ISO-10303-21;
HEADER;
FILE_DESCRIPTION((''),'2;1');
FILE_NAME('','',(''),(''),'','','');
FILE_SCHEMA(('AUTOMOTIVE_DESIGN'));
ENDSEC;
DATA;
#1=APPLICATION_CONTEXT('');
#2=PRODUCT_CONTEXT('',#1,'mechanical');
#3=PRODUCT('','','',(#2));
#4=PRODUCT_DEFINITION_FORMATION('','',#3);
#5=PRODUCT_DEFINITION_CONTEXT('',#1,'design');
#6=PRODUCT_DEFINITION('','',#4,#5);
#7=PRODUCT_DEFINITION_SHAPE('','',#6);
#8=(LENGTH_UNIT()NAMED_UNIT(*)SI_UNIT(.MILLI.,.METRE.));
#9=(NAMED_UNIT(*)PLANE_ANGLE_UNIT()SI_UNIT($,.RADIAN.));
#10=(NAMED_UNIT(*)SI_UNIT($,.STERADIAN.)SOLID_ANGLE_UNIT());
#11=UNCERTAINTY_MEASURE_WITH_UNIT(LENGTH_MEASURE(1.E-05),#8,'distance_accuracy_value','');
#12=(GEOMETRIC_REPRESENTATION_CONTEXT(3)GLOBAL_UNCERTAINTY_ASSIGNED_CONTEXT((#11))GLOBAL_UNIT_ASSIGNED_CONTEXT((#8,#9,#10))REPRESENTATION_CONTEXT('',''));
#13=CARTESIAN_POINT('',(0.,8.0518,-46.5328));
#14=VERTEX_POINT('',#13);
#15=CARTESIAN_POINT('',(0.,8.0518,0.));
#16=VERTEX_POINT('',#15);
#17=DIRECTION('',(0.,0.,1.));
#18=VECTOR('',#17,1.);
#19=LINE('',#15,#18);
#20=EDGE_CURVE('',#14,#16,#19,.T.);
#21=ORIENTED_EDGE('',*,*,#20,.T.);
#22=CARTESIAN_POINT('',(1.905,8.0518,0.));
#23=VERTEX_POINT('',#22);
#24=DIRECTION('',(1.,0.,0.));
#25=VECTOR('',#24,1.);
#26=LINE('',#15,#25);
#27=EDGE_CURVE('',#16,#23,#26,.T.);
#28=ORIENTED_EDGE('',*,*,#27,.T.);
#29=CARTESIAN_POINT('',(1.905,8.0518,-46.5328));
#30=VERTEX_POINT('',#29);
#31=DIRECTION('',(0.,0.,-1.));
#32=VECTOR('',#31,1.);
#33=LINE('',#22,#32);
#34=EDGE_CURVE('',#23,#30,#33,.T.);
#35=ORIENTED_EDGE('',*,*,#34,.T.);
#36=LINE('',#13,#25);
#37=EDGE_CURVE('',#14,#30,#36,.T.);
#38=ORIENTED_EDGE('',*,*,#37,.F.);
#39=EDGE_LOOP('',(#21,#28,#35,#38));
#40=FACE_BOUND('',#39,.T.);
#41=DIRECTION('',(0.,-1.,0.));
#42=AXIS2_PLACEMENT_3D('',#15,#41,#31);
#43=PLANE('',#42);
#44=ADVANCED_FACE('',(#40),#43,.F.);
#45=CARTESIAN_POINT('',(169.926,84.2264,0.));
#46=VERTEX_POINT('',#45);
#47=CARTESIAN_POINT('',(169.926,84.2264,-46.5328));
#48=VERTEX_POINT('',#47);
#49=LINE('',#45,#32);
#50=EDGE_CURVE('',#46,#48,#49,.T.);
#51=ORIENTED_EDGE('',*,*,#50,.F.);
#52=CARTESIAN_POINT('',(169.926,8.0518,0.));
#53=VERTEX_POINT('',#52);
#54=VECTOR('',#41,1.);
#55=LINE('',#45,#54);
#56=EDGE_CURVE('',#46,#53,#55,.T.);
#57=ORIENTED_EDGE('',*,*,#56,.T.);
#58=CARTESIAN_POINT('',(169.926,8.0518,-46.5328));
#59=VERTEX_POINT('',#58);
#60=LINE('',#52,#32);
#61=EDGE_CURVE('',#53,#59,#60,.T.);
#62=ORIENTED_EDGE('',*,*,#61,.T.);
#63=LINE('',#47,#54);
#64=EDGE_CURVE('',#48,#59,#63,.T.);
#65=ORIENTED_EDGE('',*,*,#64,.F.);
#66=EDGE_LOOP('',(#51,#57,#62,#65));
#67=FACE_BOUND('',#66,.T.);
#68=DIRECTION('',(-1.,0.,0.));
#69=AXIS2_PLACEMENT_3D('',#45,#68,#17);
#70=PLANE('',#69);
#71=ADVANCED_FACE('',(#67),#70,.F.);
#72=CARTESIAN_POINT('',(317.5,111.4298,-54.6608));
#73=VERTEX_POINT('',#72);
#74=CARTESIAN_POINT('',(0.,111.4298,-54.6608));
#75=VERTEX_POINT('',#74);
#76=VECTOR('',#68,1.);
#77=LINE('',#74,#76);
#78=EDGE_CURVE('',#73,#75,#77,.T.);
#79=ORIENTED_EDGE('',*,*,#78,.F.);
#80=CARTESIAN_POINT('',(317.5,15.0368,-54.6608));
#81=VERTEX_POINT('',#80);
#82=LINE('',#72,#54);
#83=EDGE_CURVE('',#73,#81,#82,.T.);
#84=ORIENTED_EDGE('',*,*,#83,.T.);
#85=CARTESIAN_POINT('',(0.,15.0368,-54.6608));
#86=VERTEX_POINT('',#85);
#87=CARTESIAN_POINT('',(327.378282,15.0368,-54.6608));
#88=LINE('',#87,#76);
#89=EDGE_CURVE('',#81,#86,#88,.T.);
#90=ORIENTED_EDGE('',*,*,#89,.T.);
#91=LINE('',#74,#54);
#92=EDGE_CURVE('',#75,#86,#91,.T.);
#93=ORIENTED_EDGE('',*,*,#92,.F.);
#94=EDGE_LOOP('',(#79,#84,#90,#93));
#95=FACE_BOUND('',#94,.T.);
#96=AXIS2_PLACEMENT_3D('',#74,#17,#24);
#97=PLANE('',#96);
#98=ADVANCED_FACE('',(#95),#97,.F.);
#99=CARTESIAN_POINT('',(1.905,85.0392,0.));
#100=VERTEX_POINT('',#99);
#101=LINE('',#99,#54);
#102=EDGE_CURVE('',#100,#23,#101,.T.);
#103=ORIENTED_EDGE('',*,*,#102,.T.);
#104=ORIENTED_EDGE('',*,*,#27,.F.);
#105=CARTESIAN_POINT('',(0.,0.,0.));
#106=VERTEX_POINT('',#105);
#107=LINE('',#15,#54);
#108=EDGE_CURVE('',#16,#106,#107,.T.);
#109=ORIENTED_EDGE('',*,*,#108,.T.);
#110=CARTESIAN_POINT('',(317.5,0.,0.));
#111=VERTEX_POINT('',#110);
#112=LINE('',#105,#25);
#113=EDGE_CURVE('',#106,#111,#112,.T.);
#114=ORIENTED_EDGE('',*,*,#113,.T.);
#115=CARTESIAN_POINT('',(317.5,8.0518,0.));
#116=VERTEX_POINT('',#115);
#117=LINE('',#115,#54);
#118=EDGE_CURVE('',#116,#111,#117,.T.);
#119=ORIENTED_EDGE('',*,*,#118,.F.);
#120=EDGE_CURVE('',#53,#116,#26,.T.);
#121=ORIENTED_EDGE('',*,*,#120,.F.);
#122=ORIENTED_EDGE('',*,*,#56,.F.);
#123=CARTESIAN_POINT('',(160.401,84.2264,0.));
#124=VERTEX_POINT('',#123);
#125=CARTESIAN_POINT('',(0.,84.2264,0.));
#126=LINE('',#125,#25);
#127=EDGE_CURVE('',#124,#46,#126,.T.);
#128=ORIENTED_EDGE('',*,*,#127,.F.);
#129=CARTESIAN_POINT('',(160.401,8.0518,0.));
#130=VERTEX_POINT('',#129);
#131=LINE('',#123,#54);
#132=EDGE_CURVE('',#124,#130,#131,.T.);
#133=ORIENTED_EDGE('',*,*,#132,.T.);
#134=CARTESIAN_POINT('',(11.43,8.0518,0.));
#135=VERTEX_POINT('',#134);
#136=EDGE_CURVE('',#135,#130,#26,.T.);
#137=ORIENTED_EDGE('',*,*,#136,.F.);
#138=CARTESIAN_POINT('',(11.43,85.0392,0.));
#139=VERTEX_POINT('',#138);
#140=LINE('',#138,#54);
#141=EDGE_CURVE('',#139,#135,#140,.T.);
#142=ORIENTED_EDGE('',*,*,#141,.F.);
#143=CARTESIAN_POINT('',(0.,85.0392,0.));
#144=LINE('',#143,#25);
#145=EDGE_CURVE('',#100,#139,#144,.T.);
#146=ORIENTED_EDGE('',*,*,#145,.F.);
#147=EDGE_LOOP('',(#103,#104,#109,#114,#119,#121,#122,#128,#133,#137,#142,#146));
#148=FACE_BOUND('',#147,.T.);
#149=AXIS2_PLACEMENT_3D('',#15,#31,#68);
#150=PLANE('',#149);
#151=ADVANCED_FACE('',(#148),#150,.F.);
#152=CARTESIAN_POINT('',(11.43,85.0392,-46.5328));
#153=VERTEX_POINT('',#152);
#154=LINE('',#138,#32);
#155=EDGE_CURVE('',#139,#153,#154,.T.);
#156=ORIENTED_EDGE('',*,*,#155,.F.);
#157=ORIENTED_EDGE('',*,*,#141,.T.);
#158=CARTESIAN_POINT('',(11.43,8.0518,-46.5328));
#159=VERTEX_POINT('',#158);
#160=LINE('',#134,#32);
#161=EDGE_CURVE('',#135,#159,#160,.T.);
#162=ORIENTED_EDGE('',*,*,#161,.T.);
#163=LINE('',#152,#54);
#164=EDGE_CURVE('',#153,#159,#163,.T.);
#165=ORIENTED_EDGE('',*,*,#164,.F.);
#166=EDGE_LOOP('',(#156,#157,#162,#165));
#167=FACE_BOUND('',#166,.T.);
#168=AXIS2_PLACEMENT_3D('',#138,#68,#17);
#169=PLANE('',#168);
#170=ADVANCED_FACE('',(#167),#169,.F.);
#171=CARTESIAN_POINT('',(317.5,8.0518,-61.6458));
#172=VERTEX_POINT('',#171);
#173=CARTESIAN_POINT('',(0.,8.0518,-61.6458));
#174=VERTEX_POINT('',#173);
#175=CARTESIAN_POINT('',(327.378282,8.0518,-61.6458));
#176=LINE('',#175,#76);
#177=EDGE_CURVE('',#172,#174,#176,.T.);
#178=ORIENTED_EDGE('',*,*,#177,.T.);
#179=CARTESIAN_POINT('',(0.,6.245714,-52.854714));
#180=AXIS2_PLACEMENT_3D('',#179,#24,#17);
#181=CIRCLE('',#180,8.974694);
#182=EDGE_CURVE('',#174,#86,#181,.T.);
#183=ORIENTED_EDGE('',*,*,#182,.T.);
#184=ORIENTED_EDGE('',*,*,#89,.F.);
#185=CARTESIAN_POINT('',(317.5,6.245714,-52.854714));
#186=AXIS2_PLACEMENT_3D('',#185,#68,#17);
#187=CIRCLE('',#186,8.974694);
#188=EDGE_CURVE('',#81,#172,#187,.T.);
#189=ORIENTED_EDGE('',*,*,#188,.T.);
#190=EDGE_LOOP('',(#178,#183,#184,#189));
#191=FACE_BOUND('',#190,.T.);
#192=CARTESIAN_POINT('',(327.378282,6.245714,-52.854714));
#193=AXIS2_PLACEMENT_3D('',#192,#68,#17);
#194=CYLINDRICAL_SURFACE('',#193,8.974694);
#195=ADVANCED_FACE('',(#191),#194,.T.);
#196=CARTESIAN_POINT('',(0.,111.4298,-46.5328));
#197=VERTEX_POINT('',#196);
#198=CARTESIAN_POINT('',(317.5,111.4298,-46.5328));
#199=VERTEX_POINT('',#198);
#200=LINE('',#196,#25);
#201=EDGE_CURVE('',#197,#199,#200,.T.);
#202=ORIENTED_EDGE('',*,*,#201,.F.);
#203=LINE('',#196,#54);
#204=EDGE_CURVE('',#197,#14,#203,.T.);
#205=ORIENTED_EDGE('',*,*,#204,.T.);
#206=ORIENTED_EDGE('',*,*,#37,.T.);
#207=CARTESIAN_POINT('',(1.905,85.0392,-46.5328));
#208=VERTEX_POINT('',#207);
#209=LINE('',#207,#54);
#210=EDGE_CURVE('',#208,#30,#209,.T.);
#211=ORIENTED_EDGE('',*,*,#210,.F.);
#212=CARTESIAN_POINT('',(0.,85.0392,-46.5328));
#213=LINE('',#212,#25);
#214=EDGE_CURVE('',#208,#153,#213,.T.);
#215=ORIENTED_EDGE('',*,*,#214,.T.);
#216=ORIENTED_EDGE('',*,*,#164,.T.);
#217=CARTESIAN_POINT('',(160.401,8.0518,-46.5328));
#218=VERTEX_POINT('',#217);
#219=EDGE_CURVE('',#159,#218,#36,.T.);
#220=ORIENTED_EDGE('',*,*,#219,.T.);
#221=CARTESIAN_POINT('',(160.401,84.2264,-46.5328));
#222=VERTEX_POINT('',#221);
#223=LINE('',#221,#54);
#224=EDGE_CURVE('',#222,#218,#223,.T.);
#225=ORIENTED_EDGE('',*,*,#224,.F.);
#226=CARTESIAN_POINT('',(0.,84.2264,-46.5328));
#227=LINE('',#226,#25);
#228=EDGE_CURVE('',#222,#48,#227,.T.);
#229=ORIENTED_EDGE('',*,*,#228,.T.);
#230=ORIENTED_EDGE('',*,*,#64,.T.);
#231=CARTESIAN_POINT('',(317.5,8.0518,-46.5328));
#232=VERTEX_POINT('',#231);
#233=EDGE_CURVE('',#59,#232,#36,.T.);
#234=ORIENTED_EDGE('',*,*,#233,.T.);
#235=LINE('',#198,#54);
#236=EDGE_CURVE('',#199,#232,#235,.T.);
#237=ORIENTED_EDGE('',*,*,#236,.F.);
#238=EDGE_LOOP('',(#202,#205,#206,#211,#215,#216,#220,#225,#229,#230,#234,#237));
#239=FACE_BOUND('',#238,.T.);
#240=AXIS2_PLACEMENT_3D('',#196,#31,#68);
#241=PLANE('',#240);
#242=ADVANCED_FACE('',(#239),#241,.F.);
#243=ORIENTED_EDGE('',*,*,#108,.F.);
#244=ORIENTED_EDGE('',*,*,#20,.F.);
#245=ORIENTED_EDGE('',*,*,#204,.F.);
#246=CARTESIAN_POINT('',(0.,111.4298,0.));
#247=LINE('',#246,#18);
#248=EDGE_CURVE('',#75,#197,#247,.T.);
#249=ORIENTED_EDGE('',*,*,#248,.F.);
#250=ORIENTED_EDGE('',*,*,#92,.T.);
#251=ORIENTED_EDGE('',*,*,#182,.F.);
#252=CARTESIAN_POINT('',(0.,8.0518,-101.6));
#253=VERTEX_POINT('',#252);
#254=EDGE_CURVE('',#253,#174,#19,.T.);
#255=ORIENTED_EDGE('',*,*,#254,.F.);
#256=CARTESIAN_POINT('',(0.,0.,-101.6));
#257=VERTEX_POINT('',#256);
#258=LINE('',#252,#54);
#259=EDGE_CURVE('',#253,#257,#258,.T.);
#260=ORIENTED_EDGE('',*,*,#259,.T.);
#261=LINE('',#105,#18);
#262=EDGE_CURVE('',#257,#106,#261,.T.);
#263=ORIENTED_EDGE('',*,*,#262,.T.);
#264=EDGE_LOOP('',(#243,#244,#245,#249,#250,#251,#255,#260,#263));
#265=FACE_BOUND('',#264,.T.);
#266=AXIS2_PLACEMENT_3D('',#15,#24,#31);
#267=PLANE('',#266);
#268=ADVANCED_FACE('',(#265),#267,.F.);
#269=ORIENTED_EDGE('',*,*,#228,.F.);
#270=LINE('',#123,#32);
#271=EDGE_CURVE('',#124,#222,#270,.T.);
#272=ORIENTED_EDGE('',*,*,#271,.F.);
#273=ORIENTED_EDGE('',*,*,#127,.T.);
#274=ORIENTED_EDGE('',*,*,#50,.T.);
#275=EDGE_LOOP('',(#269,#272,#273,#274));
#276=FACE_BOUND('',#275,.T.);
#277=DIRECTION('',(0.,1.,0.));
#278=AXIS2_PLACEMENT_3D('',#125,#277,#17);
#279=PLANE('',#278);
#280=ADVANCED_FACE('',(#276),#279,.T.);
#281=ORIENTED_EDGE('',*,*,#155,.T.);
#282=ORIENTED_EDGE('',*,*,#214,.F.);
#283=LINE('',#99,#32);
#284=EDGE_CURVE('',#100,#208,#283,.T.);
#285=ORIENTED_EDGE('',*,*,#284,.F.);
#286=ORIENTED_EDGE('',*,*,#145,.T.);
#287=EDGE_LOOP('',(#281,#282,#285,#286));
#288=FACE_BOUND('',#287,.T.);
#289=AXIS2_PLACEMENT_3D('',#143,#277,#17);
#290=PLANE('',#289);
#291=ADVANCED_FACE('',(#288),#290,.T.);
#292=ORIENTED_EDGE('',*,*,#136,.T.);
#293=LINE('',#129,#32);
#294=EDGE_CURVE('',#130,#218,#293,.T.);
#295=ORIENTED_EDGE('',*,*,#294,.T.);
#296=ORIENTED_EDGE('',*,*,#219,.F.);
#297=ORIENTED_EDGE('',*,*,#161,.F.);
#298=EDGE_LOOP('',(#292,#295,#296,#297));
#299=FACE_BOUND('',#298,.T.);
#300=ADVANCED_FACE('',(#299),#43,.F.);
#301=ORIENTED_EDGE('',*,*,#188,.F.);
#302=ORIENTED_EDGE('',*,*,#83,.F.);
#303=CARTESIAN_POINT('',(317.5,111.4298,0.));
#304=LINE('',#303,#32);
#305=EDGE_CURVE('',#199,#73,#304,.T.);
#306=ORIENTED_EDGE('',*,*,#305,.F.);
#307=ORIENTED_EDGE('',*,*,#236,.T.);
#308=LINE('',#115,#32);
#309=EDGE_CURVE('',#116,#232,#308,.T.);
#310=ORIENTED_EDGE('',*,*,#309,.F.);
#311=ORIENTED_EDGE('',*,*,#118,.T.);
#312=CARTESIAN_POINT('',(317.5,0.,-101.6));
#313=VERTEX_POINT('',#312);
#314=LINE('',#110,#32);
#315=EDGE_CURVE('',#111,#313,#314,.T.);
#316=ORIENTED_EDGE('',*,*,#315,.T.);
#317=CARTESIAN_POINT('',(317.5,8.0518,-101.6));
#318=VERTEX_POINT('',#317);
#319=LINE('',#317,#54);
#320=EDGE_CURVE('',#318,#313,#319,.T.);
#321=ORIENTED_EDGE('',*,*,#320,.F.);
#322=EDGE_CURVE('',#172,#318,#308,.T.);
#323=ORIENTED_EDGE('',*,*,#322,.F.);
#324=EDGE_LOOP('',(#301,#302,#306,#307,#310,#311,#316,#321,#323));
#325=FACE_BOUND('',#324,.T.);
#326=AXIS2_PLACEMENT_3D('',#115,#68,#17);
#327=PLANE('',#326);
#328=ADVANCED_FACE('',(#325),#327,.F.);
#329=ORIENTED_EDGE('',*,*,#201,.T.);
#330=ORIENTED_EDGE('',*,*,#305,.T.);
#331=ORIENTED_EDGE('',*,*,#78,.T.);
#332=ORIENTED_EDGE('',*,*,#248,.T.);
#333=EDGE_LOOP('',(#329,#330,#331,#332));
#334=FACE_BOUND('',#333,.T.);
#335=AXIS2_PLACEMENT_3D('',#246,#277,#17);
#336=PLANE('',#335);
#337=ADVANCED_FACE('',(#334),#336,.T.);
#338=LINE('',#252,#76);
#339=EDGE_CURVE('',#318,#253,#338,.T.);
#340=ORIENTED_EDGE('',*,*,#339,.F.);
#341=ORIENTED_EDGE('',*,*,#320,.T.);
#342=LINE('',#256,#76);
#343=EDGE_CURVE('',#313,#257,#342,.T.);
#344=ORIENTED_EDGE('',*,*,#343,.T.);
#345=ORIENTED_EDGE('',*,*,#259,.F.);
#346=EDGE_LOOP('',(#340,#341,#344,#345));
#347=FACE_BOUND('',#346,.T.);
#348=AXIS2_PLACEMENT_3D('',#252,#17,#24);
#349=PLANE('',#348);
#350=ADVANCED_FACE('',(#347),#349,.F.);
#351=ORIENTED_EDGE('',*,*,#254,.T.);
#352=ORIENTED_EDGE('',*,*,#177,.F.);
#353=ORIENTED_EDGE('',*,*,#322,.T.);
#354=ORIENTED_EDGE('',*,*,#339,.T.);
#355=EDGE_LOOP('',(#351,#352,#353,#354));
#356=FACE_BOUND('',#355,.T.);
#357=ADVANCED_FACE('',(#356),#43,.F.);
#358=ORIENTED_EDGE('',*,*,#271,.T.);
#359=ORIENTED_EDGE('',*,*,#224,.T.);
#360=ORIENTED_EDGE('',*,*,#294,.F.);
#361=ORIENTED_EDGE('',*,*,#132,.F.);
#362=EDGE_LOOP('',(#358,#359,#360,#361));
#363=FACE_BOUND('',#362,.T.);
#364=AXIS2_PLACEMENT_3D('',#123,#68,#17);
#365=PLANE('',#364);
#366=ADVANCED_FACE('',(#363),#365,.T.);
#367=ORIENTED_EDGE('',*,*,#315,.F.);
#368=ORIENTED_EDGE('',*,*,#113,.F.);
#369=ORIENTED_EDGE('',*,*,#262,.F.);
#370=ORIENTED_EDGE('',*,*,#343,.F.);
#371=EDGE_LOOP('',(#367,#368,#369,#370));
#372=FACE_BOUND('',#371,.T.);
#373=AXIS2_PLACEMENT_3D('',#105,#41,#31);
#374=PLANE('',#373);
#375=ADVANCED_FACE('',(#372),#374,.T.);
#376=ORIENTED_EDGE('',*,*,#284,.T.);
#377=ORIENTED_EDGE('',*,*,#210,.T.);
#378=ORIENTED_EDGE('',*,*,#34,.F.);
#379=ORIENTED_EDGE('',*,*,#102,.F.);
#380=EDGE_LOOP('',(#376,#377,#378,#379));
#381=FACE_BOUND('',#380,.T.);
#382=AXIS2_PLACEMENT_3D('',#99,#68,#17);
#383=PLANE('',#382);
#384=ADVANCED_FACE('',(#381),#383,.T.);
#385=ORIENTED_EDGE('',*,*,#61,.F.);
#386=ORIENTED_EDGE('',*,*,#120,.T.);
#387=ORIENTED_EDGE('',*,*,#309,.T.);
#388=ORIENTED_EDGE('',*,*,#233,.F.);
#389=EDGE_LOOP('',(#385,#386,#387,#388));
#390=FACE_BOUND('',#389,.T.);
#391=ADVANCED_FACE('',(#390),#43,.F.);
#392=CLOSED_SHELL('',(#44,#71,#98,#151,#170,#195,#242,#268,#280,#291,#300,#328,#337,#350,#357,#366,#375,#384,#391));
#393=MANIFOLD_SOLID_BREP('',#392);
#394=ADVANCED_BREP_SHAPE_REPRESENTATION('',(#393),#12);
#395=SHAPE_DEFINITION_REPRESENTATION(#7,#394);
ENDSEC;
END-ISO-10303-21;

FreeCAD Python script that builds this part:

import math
import FreeCAD as App
import Part
import Sketcher

V = App.Vector
Q = App.Units.Quantity

doc = App.newDocument("Part")
body = doc.addObject("PartDesign::Body", "Body")

sketch1 = body.newObject("Sketcher::SketchObject", "Sketch")
sketch1.AttachmentSupport = (doc.getObject("XZ_Plane"), [""])
sketch1.MapMode = "FlatFace"
sketch1.addGeometry([
    Part.LineSegment(V(0, -101.6, 0), V(0, 0, 0)),
    Part.LineSegment(V(0, 0, 0), V(317.5, 0, 0)),
    Part.LineSegment(V(317.5, 0, 0), V(317.5, -101.6, 0)),
    Part.LineSegment(V(317.5, -101.6, 0), V(0, -101.6, 0)),
], False)
sketch1.addConstraint([
    Sketcher.Constraint("Coincident", 0, 2, 1, 1),
    Sketcher.Constraint("Coincident", 1, 2, 2, 1),
    Sketcher.Constraint("Coincident", 2, 2, 3, 1),
    Sketcher.Constraint("Coincident", 3, 2, 0, 1),
    Sketcher.Constraint("Vertical", 0),
    Sketcher.Constraint("Horizontal", 1),
    Sketcher.Constraint("Vertical", 2),
    Sketcher.Constraint("Horizontal", 3),
    Sketcher.Constraint("Coincident", 0, 2, -1, 1),
    Sketcher.Constraint("DistanceY", 0, 1, 0, 2, Q("4 in")),
    Sketcher.Constraint("DistanceX", 1, 1, 1, 2, Q("12.5 in")),
])
pad1 = body.newObject("PartDesign::Pad", "Pad")
pad1.Profile = sketch1
pad1.Length = Q("0.317 in")
pad1.Reversed = True

sketch2 = body.newObject("Sketcher::SketchObject", "Sketch001")
sketch2.AttachmentSupport = (doc.getObject("XZ_Plane"), [""])
sketch2.MapMode = "FlatFace"
sketch2.AttachmentOffset = App.Placement(V(0, 0, -0.317 * 25.4), App.Rotation())
sketch2.addGeometry([
    Part.LineSegment(V(0, -54.6608, 0), V(0, -46.5328, 0)),
    Part.LineSegment(V(0, -46.5328, 0), V(317.5, -46.5328, 0)),
    Part.LineSegment(V(317.5, -46.5328, 0), V(317.5, -54.6608, 0)),
    Part.LineSegment(V(317.5, -54.6608, 0), V(0, -54.6608, 0)),
], False)
sketch2.addConstraint([
    Sketcher.Constraint("Coincident", 0, 2, 1, 1),
    Sketcher.Constraint("Coincident", 1, 2, 2, 1),
    Sketcher.Constraint("Coincident", 2, 2, 3, 1),
    Sketcher.Constraint("Coincident", 3, 2, 0, 1),
    Sketcher.Constraint("Vertical", 0),
    Sketcher.Constraint("Horizontal", 1),
    Sketcher.Constraint("Vertical", 2),
    Sketcher.Constraint("Horizontal", 3),
    Sketcher.Constraint("PointOnObject", 0, 2, -2),
    Sketcher.Constraint("DistanceX", 1, 1, 1, 2, Q("12.5 in")),
    Sketcher.Constraint("DistanceY", 0, 1, 0, 2, Q("0.32 in")),
    Sketcher.Constraint("DistanceY", 0, 2, -1, 1, Q("1.832 in")),
])
pad2 = body.newObject("PartDesign::Pad", "Pad001")
pad2.Profile = sketch2
pad2.Length = Q("4.07 in")
pad2.Reversed = True

sketch3 = body.newObject("Sketcher::SketchObject", "Sketch002")
sketch3.AttachmentSupport = (doc.getObject("XZ_Plane"), [""])
sketch3.MapMode = "FlatFace"
sketch3.AttachmentOffset = App.Placement(V(0, 0, -0.317 * 25.4), App.Rotation())
sketch3.addGeometry([
    Part.LineSegment(V(1.905, -46.5328, 0), V(1.905, 0, 0)),
    Part.LineSegment(V(1.905, 0, 0), V(11.43, 0, 0)),
    Part.LineSegment(V(11.43, 0, 0), V(11.43, -46.5328, 0)),
    Part.LineSegment(V(11.43, -46.5328, 0), V(1.905, -46.5328, 0)),
], False)
sketch3.addConstraint([
    Sketcher.Constraint("Coincident", 0, 2, 1, 1),
    Sketcher.Constraint("Coincident", 1, 2, 2, 1),
    Sketcher.Constraint("Coincident", 2, 2, 3, 1),
    Sketcher.Constraint("Coincident", 3, 2, 0, 1),
    Sketcher.Constraint("Vertical", 0),
    Sketcher.Constraint("Horizontal", 1),
    Sketcher.Constraint("Vertical", 2),
    Sketcher.Constraint("Horizontal", 3),
    Sketcher.Constraint("PointOnObject", 0, 2, -1),
    Sketcher.Constraint("DistanceX", 1, 1, 1, 2, Q("0.375 in")),
    Sketcher.Constraint("DistanceY", 0, 1, 0, 2, Q("1.832 in")),
    Sketcher.Constraint("DistanceX", -1, 1, 1, 2, Q("0.45 in")),
])
pad3 = body.newObject("PartDesign::Pad", "Pad002")
pad3.Profile = sketch3
pad3.Length = Q("3.031 in")
pad3.Reversed = True

sketch4 = body.newObject("Sketcher::SketchObject", "Sketch003")
sketch4.AttachmentSupport = (doc.getObject("XZ_Plane"), [""])
sketch4.MapMode = "FlatFace"
sketch4.AttachmentOffset = App.Placement(V(0, 0, -0.317 * 25.4), App.Rotation())
sketch4.addGeometry([
    Part.LineSegment(V(160.401, -46.5328, 0), V(160.401, 0, 0)),
    Part.LineSegment(V(160.401, 0, 0), V(169.926, 0, 0)),
    Part.LineSegment(V(169.926, 0, 0), V(169.926, -46.5328, 0)),
    Part.LineSegment(V(169.926, -46.5328, 0), V(160.401, -46.5328, 0)),
], False)
sketch4.addConstraint([
    Sketcher.Constraint("Coincident", 0, 2, 1, 1),
    Sketcher.Constraint("Coincident", 1, 2, 2, 1),
    Sketcher.Constraint("Coincident", 2, 2, 3, 1),
    Sketcher.Constraint("Coincident", 3, 2, 0, 1),
    Sketcher.Constraint("Vertical", 0),
    Sketcher.Constraint("Horizontal", 1),
    Sketcher.Constraint("Vertical", 2),
    Sketcher.Constraint("Horizontal", 3),
    Sketcher.Constraint("PointOnObject", 0, 2, -1),
    Sketcher.Constraint("DistanceX", 1, 1, 1, 2, Q("0.375 in")),
    Sketcher.Constraint("DistanceY", 0, 1, 0, 2, Q("1.832 in")),
    Sketcher.Constraint("DistanceX", -1, 1, 1, 2, Q("6.69 in")),
])
pad4 = body.newObject("PartDesign::Pad", "Pad003")
pad4.Profile = sketch4
pad4.Length = Q("2.999 in")
pad4.Reversed = True

sketch5 = body.newObject("Sketcher::SketchObject", "Sketch004")
sketch5.AttachmentSupport = (doc.getObject("YZ_Plane"), [""])
sketch5.MapMode = "FlatFace"
sketch5.addGeometry([
    Part.LineSegment(V(8.0518, -54.6608, 0), V(8.0518, -61.6458, 0)),
    Part.ArcOfCircle(Part.Circle(V(6.245714, -52.854714, 0), V(0, 0, 1), 8.974694), math.radians(-78.390399), math.radians(-11.609601)),
    Part.LineSegment(V(15.0368, -54.6608, 0), V(8.0518, -54.6608, 0)),
], False)
sketch5.addConstraint([
    Sketcher.Constraint("Coincident", 0, 2, 1, 1),
    Sketcher.Constraint("Coincident", 1, 2, 2, 1),
    Sketcher.Constraint("Coincident", 2, 2, 0, 1),
    Sketcher.Constraint("Vertical", 0),
    Sketcher.Constraint("Horizontal", 2),
    Sketcher.Constraint("Equal", 2, 0),
    Sketcher.Constraint("DistanceX", 2, 2, 2, 1, Q("0.275 in")),
    Sketcher.Constraint("DistanceX", -1, 1, 0, 2, Q("0.317 in")),
    Sketcher.Constraint("DistanceY", 0, 2, -1, 1, Q("2.427 in")),
    Sketcher.Constraint("Radius", 1, 8.974694),
])
pad5 = body.newObject("PartDesign::Pad", "Pad004")
pad5.Profile = sketch5
pad5.Length = Q("12.5 in")

doc.recompute()
